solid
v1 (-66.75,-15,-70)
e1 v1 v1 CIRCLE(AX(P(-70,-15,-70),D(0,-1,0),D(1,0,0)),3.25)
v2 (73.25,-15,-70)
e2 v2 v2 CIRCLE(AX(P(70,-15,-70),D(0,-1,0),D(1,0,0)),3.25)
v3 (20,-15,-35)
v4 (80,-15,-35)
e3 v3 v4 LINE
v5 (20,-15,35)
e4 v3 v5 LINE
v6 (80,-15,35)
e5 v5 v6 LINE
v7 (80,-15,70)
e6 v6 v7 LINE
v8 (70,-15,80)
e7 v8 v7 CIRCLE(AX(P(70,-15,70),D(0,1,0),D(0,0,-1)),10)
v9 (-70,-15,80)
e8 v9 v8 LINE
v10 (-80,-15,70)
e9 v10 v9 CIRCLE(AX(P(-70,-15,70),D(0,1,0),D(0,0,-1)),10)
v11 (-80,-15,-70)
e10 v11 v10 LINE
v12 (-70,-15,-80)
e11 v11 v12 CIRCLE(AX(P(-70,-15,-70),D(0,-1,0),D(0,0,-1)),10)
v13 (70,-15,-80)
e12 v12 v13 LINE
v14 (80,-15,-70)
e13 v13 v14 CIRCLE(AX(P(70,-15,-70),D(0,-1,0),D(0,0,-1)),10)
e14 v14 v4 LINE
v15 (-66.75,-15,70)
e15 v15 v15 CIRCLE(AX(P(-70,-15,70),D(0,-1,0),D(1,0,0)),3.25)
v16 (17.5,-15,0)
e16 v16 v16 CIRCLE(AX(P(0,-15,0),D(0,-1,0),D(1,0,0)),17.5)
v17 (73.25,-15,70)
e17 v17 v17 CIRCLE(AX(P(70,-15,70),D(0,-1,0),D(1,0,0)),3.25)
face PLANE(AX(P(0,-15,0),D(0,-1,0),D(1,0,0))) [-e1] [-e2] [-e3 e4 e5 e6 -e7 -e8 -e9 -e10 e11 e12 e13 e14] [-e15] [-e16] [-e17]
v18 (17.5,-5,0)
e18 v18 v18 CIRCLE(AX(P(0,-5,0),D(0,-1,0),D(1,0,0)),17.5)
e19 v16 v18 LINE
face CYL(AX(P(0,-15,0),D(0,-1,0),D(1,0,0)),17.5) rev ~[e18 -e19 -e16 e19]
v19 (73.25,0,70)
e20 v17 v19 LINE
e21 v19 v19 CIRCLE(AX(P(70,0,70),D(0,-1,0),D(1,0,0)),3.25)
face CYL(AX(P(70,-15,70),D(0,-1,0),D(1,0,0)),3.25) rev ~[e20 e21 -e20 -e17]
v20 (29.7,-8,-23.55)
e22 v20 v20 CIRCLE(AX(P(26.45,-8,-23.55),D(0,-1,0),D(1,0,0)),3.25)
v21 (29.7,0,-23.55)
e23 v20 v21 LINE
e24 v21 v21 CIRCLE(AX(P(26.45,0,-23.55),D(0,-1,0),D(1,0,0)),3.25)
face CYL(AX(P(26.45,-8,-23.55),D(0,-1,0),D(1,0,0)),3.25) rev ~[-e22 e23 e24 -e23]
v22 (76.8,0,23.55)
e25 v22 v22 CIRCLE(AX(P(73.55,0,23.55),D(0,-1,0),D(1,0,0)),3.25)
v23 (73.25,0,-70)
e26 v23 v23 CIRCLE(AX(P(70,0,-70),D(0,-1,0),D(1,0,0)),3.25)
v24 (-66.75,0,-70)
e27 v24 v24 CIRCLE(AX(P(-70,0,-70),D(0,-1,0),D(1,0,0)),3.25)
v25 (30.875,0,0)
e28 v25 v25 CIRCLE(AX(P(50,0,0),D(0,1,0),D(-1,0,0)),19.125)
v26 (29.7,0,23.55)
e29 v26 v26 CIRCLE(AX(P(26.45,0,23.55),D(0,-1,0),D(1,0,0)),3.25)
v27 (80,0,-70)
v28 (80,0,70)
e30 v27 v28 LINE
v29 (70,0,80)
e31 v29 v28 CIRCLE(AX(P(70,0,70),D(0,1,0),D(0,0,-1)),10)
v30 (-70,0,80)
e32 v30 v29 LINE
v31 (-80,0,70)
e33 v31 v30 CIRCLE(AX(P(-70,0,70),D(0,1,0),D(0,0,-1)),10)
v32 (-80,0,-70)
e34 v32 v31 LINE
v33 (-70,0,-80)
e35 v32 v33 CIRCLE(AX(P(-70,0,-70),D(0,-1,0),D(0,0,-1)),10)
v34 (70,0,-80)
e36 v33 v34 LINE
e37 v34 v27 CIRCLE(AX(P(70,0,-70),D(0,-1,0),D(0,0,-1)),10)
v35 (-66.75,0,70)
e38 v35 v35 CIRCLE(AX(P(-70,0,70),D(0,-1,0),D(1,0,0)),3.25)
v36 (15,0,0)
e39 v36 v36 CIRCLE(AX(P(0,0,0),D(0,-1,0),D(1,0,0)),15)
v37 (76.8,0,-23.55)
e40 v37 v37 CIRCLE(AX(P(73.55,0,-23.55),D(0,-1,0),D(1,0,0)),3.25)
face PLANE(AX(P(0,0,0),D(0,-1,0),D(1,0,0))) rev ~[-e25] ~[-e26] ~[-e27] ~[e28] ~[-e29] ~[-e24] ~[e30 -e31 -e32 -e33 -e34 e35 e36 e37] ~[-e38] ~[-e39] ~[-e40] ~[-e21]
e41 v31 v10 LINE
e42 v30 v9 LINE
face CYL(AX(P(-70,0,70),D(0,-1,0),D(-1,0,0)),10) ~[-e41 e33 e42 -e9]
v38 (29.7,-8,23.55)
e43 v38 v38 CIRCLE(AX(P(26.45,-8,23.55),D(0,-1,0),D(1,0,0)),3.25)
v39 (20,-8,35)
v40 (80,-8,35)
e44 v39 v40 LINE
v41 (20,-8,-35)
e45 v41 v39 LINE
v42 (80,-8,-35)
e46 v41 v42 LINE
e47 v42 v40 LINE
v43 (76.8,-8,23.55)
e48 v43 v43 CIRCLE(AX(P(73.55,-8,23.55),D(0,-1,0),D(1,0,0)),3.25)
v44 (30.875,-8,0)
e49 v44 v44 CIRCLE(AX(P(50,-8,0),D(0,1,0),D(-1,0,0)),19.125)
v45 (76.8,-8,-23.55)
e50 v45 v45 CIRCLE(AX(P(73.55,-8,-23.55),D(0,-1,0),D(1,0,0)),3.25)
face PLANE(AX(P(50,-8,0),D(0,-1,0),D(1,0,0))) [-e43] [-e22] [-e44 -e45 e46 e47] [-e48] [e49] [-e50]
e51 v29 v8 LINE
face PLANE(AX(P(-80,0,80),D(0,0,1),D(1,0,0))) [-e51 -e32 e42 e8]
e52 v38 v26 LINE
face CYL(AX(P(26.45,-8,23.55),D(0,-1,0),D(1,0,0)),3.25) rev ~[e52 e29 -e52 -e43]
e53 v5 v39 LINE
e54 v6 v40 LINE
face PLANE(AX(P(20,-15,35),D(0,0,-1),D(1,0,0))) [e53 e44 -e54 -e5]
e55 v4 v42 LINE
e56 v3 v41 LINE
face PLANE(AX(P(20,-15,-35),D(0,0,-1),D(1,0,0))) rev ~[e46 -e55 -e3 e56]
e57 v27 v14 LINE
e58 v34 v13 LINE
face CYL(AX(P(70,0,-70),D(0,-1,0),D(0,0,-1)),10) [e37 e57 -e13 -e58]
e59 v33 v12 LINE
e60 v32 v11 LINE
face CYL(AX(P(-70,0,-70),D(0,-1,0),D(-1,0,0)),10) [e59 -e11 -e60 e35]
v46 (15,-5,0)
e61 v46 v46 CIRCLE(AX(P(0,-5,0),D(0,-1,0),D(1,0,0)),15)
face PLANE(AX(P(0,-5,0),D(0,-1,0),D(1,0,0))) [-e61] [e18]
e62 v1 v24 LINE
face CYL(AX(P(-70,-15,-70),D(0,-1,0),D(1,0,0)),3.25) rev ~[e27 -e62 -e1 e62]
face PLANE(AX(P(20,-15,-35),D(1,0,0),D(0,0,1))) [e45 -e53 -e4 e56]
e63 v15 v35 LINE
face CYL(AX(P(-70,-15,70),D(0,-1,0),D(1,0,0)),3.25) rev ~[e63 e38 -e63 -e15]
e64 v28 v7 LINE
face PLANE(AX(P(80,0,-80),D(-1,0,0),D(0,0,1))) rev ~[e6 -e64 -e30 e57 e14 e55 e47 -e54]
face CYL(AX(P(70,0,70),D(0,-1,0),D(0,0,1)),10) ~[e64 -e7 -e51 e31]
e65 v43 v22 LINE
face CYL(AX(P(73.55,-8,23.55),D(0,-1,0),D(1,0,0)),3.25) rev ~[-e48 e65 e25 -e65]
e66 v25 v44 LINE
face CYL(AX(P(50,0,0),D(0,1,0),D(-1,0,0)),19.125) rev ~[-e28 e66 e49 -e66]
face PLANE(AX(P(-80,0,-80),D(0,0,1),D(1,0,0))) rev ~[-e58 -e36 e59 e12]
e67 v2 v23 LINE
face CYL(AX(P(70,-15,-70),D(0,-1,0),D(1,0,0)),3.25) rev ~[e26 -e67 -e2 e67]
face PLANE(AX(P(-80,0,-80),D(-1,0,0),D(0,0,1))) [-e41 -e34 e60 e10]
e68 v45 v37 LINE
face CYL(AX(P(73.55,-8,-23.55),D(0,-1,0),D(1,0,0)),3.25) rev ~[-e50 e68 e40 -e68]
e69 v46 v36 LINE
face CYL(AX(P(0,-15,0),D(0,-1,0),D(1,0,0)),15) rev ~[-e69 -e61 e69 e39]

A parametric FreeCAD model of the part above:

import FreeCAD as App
import Part
import Sketcher


def edges_at(feature, points):
    """Names of the edges that pass closest to the given points."""
    edges = feature.Shape.Edges
    near = lambda p: min(range(len(edges)), key=lambda i: edges[i].distToShape(Part.Vertex(*p))[0])
    return sorted({f"Edge{near(p) + 1}" for p in points})


def add_polygon(sketch, points):
    """Adds a closed chain of lines whose ends are joined by coincident constraints."""
    first, n = sketch.GeometryCount, len(points)
    for a, b in zip(points, points[1:] + points[:1]):
        sketch.addGeometry(Part.LineSegment(App.Vector(*a, 0), App.Vector(*b, 0)), False)
    for i in range(n):
        sketch.addConstraint(Sketcher.Constraint("Coincident", first + i, 2, first + (i + 1) % n, 1))

doc = App.newDocument("Part")
body = doc.addObject("PartDesign::Body", "Body")

sketch1 = body.newObject("Sketcher::SketchObject", "Sketch")
sketch1.AttachmentSupport = (doc.getObject("XZ_Plane"), [""])
sketch1.MapMode = "FlatFace"
add_polygon(sketch1, [(-80, 80), (-80, -80), (80, -80), (80, 80)])
sketch1.addConstraint([
    Sketcher.Constraint("Vertical", 0),
    Sketcher.Constraint("Horizontal", 1),
    Sketcher.Constraint("Vertical", 2),
    Sketcher.Constraint("Horizontal", 3),
    Sketcher.Constraint("Symmetric", 0, 2, 2, 2, -1, 1),
    Sketcher.Constraint("Equal", 3, 0),
    Sketcher.Constraint("DistanceX", 1, 1, 1, 2, 160.0),
])
pad1 = body.newObject("PartDesign::Pad", "Pad")
pad1.Profile = sketch1
pad1.Length = 15

sketch2 = body.newObject("Sketcher::SketchObject", "Sketch001")
sketch2.AttachmentSupport = (doc.getObject("XZ_Plane"), [""])
sketch2.MapMode = "FlatFace"
sketch2.AttachmentOffset = App.Placement(App.Vector(0, 0, 15), App.Rotation())
sketch2.addGeometry(Part.Circle(App.Vector(0, 0, 0), App.Vector(0, 0, 1), 15), False)
sketch2.addConstraint([
    Sketcher.Constraint("Coincident", 0, 3, -1, 1),
    Sketcher.Constraint("Diameter", 0, 30.0),
])
pocket1 = body.newObject("PartDesign::Pocket", "Pocket")
pocket1.Profile = sketch2
pocket1.Length = 25

sketch3 = body.newObject("Sketcher::SketchObject", "Sketch002")
sketch3.AttachmentSupport = (doc.getObject("XZ_Plane"), [""])
sketch3.MapMode = "FlatFace"
sketch3.AttachmentOffset = App.Placement(App.Vector(0, 0, 15), App.Rotation())
sketch3.addGeometry(Part.Circle(App.Vector(0, 0, 0), App.Vector(0, 0, 1), 17.5), False)
sketch3.addConstraint([
    Sketcher.Constraint("Coincident", 0, 3, -1, 1),
    Sketcher.Constraint("Diameter", 0, 35.0),
])
pocket2 = body.newObject("PartDesign::Pocket", "Pocket001")
pocket2.Profile = sketch3
pocket2.Length = 10
doc.recompute()

fillet = body.newObject("PartDesign::Fillet", "Fillet")
fillet.Base = (pocket2, edges_at(pocket2, [
    (80, -7.5, 80),
    (80, -7.5, -80),
    (-80, -7.5, -80),
    (-80, -7.5, 80),
]))
fillet.Radius = 10

sketch4 = body.newObject("Sketcher::SketchObject", "Sketch003")
sketch4.AttachmentSupport = (doc.getObject("XZ_Plane"), [""])
sketch4.MapMode = "FlatFace"
sketch4.AttachmentOffset = App.Placement(App.Vector(0, 0, 15), App.Rotation())
add_polygon(sketch4, [(20, 35), (20, -35), (80, -35), (80, 35)])
sketch4.addConstraint([
    Sketcher.Constraint("Vertical", 0),
    Sketcher.Constraint("Horizontal", 1),
    Sketcher.Constraint("Vertical", 2),
    Sketcher.Constraint("Horizontal", 3),
    Sketcher.Constraint("DistanceX", 1, 1, 1, 2, 60.0),
    Sketcher.Constraint("DistanceY", 0, 2, 0, 1, 70.0),
    Sketcher.Constraint("DistanceX", -1, 1, 0, 2, 20.0),
    Sketcher.Constraint("DistanceY", 0, 2, -1, 1, 35.0),
])
pocket3 = body.newObject("PartDesign::Pocket", "Pocket002")
pocket3.Profile = sketch4
pocket3.Length = 7

sketch5 = body.newObject("Sketcher::SketchObject", "Sketch004")
sketch5.AttachmentSupport = (doc.getObject("XZ_Plane"), [""])
sketch5.MapMode = "FlatFace"
sketch5.addGeometry(Part.Circle(App.Vector(50, 0, 0), App.Vector(0, 0, 1), 19.125), False)
sketch5.addConstraint([
    Sketcher.Constraint("PointOnObject", 0, 3, -1),
    Sketcher.Constraint("Diameter", 0, 38.25),
    Sketcher.Constraint("DistanceX", -1, 1, 0, 3, 50.0),
])
pocket4 = body.newObject("PartDesign::Pocket", "Pocket003")
pocket4.Profile = sketch5
pocket4.Length = 25
pocket4.Reversed = True

sketch6 = body.newObject("Sketcher::SketchObject", "Sketch005")
sketch6.AttachmentSupport = (doc.getObject("XZ_Plane"), [""])
sketch6.MapMode = "FlatFace"
sketch6.AttachmentOffset = App.Placement(App.Vector(0, 0, 8), App.Rotation())
sketch6.addGeometry([
    Part.Circle(App.Vector(26.45, 23.55, 0), App.Vector(0, 0, 1), 3.25),
    Part.Circle(App.Vector(26.45, -23.55, 0), App.Vector(0, 0, 1), 3.25),
    Part.Circle(App.Vector(73.55, -23.55, 0), App.Vector(0, 0, 1), 3.25),
    Part.Circle(App.Vector(73.55, 23.55, 0), App.Vector(0, 0, 1), 3.25),
], False)
sketch6.addConstraint([
    Sketcher.Constraint("Equal", 0, 1),
    Sketcher.Constraint("Equal", 1, 2),
    Sketcher.Constraint("Equal", 2, 3),
    Sketcher.Constraint("Symmetric", 0, 3, 1, 3, -1),
    Sketcher.Constraint("Symmetric", 2, 3, 3, 3, -1),
    Sketcher.Constraint("Horizontal", 1, 3, 2, 3),
    Sketcher.Constraint("Diameter", 0, 6.5),
    Sketcher.Constraint("DistanceY", 1, 3, 0, 3, 47.1),
    Sketcher.Constraint("DistanceX", 1, 3, 2, 3, 47.1),
    Sketcher.Constraint("DistanceX", -1, 1, 0, 3, 26.45),
])
pocket5 = body.newObject("PartDesign::Pocket", "Pocket004")
pocket5.Profile = sketch6
pocket5.Length = 25

sketch7 = body.newObject("Sketcher::SketchObject", "Sketch006")
sketch7.AttachmentSupport = (doc.getObject("XZ_Plane"), [""])
sketch7.MapMode = "FlatFace"
sketch7.AttachmentOffset = App.Placement(App.Vector(0, 0, 15), App.Rotation())
sketch7.addGeometry([
    Part.Circle(App.Vector(70, 70, 0), App.Vector(0, 0, 1), 3.25),
    Part.Circle(App.Vector(-70, 70, 0), App.Vector(0, 0, 1), 3.25),
    Part.Circle(App.Vector(-70, -70, 0), App.Vector(0, 0, 1), 3.25),
    Part.Circle(App.Vector(70, -70, 0), App.Vector(0, 0, 1), 3.25),
], False)
sketch7.addConstraint([
    Sketcher.Constraint("Equal", 0, 1),
    Sketcher.Constraint("Equal", 1, 2),
    Sketcher.Constraint("Equal", 2, 3),
    Sketcher.Constraint("Symmetric", 0, 3, 2, 3, -1, 1),
    Sketcher.Constraint("Symmetric", 1, 3, 3, 3, -1, 1),
    Sketcher.Constraint("Symmetric", 0, 3, 1, 3, -2),
    Sketcher.Constraint("Diameter", 0, 6.5),
    Sketcher.Constraint("DistanceX", -1, 1, 0, 3, 70.0),
    Sketcher.Constraint("DistanceY", -1, 1, 0, 3, 70.0),
])
pocket6 = body.newObject("PartDesign::Pocket", "Pocket005")
pocket6.Profile = sketch7
pocket6.Length = 25

doc.recompute()
